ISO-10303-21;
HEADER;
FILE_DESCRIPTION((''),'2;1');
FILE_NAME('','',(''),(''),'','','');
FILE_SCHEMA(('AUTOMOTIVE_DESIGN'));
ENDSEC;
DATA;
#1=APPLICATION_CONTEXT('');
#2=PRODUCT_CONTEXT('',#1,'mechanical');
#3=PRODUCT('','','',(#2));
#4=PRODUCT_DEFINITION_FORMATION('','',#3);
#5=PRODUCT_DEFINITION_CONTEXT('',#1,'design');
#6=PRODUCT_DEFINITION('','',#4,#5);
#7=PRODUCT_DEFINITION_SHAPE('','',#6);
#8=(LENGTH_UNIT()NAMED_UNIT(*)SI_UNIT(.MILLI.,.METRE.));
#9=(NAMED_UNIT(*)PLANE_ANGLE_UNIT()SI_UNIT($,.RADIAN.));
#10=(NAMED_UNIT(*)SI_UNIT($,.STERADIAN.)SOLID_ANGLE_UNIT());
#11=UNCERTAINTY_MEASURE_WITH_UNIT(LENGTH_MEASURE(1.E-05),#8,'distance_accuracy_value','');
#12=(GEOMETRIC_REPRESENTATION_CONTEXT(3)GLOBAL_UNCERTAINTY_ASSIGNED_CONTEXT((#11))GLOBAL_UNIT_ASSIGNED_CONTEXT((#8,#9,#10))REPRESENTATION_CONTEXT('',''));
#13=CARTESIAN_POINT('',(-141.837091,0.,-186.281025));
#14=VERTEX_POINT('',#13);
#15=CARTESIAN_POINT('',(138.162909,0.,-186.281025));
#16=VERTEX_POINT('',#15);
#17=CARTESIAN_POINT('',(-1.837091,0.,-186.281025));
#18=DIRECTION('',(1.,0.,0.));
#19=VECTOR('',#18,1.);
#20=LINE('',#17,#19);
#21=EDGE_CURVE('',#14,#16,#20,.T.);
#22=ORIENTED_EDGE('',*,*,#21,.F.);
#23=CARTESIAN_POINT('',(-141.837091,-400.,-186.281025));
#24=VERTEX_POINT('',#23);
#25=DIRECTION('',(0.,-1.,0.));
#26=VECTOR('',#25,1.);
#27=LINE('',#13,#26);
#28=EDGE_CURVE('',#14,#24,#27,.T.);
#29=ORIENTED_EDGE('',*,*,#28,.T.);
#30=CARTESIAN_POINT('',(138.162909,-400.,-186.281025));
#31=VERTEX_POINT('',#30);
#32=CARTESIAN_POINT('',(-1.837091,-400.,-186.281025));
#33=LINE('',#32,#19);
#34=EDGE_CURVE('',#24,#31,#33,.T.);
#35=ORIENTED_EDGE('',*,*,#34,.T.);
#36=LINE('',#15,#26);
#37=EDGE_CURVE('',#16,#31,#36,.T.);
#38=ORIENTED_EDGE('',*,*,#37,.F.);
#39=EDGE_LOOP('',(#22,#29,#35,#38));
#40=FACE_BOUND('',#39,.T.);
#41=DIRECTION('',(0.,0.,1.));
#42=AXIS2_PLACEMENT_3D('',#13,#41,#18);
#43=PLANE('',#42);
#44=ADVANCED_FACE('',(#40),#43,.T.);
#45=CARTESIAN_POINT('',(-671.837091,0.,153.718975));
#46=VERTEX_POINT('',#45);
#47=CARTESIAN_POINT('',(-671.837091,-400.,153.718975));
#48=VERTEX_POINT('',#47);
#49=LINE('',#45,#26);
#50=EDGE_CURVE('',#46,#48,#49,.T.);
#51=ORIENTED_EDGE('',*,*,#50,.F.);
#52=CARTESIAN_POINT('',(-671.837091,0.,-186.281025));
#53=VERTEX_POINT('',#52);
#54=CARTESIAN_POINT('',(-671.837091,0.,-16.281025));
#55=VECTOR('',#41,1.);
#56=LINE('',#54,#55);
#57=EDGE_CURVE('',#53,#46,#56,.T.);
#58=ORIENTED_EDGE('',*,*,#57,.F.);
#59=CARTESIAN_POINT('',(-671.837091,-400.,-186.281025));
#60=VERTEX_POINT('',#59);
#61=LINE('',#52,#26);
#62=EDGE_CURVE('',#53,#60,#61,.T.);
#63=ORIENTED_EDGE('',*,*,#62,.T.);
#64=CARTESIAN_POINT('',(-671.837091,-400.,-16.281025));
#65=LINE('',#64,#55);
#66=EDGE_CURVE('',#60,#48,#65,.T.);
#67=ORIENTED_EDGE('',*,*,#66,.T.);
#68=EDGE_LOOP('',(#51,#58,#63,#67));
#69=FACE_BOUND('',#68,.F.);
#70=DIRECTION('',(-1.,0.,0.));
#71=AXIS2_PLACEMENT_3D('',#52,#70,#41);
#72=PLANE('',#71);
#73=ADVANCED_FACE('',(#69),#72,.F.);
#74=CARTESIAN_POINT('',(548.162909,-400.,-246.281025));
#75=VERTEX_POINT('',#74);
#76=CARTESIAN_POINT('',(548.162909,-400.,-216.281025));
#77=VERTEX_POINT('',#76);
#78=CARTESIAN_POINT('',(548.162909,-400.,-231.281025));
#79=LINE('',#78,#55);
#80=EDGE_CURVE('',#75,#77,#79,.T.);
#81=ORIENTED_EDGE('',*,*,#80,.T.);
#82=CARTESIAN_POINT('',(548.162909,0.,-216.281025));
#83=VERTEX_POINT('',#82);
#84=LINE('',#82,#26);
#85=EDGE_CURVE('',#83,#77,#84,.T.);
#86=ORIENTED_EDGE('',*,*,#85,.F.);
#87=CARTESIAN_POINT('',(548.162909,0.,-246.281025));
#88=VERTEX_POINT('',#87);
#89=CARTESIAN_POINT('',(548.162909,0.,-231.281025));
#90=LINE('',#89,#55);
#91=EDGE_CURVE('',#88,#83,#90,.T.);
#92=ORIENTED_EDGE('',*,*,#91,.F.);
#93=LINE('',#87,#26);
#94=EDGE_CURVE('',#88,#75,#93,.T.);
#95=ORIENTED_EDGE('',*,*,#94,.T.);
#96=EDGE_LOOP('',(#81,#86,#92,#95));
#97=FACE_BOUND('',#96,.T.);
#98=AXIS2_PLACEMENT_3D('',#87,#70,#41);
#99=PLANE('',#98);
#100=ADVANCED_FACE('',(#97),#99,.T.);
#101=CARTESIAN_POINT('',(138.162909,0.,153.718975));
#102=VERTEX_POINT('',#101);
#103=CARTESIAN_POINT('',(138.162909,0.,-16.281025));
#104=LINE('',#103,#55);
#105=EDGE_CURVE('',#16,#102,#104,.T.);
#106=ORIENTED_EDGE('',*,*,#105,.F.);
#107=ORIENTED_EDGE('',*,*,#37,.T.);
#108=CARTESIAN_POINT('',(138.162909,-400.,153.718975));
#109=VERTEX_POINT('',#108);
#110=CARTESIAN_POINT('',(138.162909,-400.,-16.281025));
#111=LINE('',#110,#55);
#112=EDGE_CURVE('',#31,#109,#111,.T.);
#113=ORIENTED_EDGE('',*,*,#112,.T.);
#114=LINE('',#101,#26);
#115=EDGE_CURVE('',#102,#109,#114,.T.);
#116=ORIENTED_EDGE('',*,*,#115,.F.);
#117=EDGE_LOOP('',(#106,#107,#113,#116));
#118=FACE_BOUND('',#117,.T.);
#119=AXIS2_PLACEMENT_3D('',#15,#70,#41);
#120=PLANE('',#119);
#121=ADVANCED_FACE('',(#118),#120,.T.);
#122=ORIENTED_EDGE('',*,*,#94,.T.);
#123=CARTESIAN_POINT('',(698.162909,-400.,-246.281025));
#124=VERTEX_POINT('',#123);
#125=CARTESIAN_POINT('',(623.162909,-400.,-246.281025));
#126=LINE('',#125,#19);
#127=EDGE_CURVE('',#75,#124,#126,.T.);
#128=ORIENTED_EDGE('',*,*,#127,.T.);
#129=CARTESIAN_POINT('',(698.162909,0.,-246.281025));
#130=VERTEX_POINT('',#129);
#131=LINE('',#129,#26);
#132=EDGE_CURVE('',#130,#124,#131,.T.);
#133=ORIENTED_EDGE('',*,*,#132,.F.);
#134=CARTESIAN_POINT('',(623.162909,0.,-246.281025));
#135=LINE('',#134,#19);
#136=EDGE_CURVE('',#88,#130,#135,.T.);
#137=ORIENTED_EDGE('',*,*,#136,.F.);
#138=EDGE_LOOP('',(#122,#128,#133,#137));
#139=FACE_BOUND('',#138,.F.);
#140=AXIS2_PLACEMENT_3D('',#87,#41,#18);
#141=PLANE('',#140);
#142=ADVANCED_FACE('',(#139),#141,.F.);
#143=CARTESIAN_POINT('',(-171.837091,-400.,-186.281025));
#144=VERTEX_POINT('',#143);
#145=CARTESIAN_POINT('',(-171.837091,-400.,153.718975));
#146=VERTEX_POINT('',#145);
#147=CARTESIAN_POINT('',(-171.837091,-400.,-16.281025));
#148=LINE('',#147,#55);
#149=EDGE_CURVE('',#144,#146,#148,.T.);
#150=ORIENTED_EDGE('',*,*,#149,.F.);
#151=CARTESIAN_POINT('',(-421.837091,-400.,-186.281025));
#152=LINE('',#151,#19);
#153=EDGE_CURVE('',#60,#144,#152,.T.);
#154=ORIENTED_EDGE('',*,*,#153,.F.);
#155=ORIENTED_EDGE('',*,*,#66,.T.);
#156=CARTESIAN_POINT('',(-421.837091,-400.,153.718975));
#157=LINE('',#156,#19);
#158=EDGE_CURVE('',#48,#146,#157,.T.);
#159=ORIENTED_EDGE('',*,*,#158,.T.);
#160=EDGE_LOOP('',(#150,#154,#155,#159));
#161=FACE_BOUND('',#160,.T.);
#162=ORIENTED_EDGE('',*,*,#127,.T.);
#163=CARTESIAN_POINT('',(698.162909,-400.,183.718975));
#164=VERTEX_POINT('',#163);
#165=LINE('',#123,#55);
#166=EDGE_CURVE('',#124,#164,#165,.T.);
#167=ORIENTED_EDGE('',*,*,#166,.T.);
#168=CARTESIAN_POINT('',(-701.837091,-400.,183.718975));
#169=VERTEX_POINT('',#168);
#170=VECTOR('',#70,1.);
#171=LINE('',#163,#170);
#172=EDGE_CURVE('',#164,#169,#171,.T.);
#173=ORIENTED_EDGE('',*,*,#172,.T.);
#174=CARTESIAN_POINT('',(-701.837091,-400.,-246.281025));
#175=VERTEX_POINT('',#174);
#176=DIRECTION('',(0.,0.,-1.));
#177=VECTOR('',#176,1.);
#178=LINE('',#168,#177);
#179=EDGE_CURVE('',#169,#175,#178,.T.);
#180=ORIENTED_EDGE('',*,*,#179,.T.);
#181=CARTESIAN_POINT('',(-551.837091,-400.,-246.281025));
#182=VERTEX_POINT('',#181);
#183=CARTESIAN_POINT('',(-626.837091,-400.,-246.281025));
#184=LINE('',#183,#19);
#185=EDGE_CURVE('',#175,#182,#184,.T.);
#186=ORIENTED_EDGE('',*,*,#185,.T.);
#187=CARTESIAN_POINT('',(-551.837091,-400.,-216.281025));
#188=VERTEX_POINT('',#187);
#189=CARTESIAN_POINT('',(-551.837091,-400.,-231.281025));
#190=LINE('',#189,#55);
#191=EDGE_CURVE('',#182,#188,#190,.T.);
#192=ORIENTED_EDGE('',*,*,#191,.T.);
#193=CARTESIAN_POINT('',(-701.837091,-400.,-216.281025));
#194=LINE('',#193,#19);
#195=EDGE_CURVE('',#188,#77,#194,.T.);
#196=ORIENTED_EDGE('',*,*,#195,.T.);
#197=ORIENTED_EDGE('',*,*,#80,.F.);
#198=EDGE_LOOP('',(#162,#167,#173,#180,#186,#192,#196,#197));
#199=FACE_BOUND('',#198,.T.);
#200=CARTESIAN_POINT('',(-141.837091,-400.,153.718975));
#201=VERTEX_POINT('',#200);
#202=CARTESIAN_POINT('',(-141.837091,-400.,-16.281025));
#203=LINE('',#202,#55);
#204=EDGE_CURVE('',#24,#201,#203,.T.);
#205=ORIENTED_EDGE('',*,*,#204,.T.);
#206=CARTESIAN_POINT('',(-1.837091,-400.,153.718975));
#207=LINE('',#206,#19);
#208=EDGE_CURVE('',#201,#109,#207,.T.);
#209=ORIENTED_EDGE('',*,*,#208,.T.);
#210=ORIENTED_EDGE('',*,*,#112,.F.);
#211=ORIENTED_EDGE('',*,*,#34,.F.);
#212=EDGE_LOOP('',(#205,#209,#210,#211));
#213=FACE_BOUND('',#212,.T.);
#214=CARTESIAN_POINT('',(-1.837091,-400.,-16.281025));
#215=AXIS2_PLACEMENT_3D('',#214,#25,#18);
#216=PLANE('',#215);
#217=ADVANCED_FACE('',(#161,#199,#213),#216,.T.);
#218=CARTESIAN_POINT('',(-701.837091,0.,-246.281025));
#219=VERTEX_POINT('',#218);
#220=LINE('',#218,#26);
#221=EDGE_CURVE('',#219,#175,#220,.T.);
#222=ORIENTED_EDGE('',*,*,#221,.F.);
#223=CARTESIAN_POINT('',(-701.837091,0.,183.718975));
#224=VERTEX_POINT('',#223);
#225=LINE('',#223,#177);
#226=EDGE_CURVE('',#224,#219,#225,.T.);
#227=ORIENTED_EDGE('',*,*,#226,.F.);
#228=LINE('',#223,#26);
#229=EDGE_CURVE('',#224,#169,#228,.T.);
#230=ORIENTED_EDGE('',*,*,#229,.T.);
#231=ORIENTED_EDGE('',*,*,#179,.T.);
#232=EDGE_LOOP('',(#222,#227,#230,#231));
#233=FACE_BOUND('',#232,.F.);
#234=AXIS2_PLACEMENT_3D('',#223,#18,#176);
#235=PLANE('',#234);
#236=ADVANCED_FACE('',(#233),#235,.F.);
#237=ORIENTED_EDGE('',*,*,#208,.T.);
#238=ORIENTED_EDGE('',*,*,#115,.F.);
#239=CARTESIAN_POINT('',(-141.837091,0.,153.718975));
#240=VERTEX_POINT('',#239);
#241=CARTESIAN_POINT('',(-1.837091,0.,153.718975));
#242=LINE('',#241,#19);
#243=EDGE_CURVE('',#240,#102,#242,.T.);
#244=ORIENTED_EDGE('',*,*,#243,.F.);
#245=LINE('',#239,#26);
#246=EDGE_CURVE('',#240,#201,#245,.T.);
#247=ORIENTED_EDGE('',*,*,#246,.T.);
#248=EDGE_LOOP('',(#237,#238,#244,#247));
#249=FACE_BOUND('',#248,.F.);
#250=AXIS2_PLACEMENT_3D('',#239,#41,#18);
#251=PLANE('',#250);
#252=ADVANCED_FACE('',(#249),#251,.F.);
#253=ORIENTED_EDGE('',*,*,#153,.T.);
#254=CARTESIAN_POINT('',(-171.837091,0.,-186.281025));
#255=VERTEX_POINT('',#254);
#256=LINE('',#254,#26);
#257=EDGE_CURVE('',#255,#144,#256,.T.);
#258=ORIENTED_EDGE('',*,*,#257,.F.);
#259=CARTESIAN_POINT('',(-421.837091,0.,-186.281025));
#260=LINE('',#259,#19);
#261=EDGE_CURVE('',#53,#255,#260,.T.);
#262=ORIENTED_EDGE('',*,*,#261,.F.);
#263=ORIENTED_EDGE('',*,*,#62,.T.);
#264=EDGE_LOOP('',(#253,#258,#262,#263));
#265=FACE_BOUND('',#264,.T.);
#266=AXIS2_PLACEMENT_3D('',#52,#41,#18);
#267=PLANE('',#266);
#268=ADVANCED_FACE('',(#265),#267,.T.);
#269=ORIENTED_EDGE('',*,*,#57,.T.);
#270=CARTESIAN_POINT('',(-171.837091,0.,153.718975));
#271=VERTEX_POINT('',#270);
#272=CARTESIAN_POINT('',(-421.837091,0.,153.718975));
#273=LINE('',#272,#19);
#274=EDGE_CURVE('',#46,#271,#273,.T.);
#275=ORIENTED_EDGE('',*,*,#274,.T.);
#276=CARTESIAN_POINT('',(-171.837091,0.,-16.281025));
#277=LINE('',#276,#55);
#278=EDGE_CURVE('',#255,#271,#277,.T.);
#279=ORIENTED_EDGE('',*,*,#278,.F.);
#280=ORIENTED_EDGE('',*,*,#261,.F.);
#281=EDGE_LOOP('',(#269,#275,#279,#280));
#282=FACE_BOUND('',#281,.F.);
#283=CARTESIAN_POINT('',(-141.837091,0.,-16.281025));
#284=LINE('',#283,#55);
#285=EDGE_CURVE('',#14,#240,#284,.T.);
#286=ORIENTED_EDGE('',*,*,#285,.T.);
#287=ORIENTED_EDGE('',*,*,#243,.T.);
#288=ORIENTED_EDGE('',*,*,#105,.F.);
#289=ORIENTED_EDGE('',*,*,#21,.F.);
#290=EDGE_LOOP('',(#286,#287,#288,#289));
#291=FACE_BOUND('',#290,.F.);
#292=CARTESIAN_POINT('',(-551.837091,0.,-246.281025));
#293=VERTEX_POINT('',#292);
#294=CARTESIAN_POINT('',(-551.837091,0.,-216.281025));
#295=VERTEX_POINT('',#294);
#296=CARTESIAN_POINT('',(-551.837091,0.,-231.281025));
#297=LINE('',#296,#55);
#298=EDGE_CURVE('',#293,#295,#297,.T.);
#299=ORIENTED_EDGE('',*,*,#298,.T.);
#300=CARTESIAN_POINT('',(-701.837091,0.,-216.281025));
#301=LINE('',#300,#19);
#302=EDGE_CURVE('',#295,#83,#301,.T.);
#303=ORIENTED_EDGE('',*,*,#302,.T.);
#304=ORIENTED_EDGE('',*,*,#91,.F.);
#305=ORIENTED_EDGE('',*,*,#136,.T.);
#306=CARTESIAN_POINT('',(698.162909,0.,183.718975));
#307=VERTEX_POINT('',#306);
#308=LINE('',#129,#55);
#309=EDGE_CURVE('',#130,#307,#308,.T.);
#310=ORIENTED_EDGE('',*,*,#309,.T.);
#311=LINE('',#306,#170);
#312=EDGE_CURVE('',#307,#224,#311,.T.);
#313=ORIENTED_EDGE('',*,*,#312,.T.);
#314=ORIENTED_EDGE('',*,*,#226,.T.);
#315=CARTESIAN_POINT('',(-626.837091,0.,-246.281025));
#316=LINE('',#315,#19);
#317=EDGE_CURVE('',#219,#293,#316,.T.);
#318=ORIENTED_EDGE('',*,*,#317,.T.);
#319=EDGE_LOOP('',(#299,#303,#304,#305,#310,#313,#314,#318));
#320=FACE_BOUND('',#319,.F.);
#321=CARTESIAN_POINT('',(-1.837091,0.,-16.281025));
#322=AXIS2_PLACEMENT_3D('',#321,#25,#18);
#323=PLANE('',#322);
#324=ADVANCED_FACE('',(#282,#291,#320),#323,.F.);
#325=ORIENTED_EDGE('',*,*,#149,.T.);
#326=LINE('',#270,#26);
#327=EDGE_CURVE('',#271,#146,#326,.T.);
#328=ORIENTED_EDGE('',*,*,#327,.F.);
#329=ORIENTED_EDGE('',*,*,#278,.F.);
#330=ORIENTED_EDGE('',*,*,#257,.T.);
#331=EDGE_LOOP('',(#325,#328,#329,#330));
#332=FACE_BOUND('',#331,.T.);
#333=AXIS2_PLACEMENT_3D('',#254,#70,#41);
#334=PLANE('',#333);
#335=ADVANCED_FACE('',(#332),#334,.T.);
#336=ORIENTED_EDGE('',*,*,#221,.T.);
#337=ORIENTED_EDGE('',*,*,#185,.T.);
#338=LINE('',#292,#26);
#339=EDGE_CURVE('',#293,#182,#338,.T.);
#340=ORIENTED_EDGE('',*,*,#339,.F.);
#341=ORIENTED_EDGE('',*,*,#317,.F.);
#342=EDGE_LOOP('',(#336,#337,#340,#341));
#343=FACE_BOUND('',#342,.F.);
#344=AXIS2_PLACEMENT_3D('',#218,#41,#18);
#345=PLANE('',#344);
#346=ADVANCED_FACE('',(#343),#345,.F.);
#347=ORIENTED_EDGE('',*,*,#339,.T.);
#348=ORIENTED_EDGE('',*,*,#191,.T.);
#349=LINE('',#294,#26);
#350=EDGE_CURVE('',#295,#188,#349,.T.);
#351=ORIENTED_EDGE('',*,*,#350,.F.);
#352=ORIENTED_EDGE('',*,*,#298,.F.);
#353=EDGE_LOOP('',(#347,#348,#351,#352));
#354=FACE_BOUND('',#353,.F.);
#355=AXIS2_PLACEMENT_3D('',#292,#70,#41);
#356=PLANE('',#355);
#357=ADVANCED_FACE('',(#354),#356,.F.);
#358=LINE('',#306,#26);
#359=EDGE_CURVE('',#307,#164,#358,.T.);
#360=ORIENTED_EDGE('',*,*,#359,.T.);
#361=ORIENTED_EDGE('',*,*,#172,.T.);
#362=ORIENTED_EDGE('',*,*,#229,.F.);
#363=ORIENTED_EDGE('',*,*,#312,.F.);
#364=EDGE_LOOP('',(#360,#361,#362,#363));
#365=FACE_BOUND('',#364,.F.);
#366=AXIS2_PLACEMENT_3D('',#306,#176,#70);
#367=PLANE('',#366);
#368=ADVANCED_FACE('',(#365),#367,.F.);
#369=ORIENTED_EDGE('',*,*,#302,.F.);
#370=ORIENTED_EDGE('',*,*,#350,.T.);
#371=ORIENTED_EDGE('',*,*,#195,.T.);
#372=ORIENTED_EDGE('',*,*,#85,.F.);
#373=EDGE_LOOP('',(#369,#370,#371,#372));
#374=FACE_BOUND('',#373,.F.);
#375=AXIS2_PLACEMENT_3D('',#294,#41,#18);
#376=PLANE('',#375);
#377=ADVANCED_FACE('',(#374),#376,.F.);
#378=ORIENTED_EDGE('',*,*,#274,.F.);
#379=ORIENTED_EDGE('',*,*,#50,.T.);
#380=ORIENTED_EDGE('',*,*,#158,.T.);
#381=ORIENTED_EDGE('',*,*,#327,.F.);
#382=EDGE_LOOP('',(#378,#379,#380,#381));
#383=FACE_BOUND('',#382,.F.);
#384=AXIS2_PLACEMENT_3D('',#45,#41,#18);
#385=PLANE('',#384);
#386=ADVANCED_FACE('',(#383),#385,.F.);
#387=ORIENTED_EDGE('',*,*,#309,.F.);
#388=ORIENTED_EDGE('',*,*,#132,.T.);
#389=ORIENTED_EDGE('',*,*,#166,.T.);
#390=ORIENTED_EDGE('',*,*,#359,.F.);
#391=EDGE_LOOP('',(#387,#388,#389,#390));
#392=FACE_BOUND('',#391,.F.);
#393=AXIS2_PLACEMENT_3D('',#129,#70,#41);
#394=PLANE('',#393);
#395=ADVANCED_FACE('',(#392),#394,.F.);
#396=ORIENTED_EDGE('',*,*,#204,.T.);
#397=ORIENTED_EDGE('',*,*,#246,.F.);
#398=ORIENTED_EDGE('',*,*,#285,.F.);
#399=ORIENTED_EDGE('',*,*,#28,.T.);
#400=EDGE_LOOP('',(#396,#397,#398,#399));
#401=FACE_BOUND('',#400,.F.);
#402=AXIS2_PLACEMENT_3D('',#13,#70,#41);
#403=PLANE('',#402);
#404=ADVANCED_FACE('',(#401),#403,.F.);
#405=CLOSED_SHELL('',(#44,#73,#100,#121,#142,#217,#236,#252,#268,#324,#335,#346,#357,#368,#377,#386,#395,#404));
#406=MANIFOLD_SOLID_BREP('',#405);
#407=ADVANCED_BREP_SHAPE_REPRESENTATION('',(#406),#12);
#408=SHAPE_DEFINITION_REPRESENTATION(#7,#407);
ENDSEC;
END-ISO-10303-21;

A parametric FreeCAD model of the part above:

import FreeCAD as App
import Part
import Sketcher
from FreeCAD import Vector
Q = App.Units.Quantity


def add_polygon(sketch, points):
    """Adds a closed chain of lines whose ends are joined by coincident constraints."""
    first, n = sketch.GeometryCount, len(points)
    for a, b in zip(points, points[1:] + points[:1]):
        sketch.addGeometry(Part.LineSegment(App.Vector(*a, 0), App.Vector(*b, 0)), False)
    for i in range(n):
        sketch.addConstraint(Sketcher.Constraint("Coincident", first + i, 2, first + (i + 1) % n, 1))

doc = App.newDocument("Part")
body = doc.addObject("PartDesign::Body", "Body")

sketch1 = body.newObject("Sketcher::SketchObject", "Sketch")
sketch1.AttachmentSupport = (doc.getObject("XZ_Plane"), [""])
sketch1.MapMode = "FlatFace"
add_polygon(sketch1, [(698, 184), (-702, 184), (-702, -246), (-552, -246), (-552, -216), (548, -216), (548, -246), (698, -246)])
add_polygon(sketch1, [(-172, -186), (-672, -186), (-672, 154), (-172, 154)])
add_polygon(sketch1, [(138, -186), (-142, -186), (-142, 154), (138, 154)])
sketch1.addConstraint([
    Sketcher.Constraint("Horizontal", 0),
    Sketcher.Constraint("Vertical", 1),
    Sketcher.Constraint("Horizontal", 2),
    Sketcher.Constraint("Vertical", 3),
    Sketcher.Constraint("Horizontal", 4),
    Sketcher.Constraint("Vertical", 5),
    Sketcher.Constraint("Horizontal", 6),
    Sketcher.Constraint("Vertical", 7),
    Sketcher.Constraint("Horizontal", 8),
    Sketcher.Constraint("Vertical", 9),
    Sketcher.Constraint("Horizontal", 10),
    Sketcher.Constraint("Vertical", 11),
    Sketcher.Constraint("Horizontal", 12),
    Sketcher.Constraint("Vertical", 13),
    Sketcher.Constraint("Horizontal", 14),
    Sketcher.Constraint("Vertical", 15),
    Sketcher.Constraint("Horizontal", 2, 2, 5, 2),
    Sketcher.Constraint("Horizontal", 11, 2, 12, 2),
    Sketcher.Constraint("Horizontal", 10, 2, 13, 2),
    Sketcher.Constraint("Equal", 2, 6),
    Sketcher.Constraint("DistanceX", 0, 2, 0, 1, Q("1400 mm")),
    Sketcher.Constraint("DistanceX", 2, 1, 2, 2, Q("150 mm")),
    Sketcher.Constraint("DistanceX", 8, 2, 8, 1, Q("500 mm")),
    Sketcher.Constraint("DistanceX", 12, 2, 12, 1, Q("280 mm")),
    Sketcher.Constraint("DistanceY", 1, 2, 1, 1, Q("430 mm")),
    Sketcher.Constraint("DistanceY", 3, 1, 3, 2, Q("30 mm")),
    Sketcher.Constraint("DistanceY", 9, 1, 9, 2, Q("340 mm")),
    Sketcher.Constraint("DistanceX", 1, 2, 8, 2, Q("30 mm")),
    Sketcher.Constraint("DistanceY", 1, 2, 8, 2, Q("60 mm")),
    Sketcher.Constraint("DistanceX", 11, 2, 12, 2, Q("30 mm")),
    Sketcher.Constraint("DistanceX", 0, 2, -1, 1, Q("701.837091 mm")),
    Sketcher.Constraint("DistanceY", -1, 1, 0, 2, Q("183.718975 mm")),
])
pad1 = body.newObject("PartDesign::Pad", "Pad")
pad1.Profile = sketch1
pad1.Length = 400

doc.recompute()
